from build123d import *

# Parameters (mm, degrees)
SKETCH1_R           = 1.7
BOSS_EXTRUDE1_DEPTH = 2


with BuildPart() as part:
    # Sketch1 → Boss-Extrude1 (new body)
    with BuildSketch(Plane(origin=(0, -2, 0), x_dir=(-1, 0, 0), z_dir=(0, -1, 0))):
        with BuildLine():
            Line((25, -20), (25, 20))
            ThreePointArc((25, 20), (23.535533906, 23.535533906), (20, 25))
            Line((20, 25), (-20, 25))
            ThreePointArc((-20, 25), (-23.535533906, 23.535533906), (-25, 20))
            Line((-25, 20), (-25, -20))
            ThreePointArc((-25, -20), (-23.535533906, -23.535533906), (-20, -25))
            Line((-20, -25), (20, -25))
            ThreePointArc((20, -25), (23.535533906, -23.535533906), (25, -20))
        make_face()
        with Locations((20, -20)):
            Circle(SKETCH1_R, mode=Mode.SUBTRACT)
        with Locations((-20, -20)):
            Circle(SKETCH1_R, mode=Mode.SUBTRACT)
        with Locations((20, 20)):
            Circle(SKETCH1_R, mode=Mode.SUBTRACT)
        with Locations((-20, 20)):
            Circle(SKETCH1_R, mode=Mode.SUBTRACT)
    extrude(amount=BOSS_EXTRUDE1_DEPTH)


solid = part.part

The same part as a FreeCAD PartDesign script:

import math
import FreeCAD as App
import Part
import Sketcher

V = App.Vector
Q = App.Units.Quantity

doc = App.newDocument("Part")
body = doc.addObject("PartDesign::Body", "Body")

# Sketch on XZ plane
sketch1 = doc.addObject("Sketcher::SketchObject", "Sketch")
body.addObject(sketch1)
sketch1.AttachmentSupport = (doc.XZ_Plane, [""])
sketch1.MapMode = "FlatFace"
sketch1.AttachmentOffset = App.Placement(V(0, 0, 2), App.Rotation())
sketch1.addGeometry(Part.LineSegment(V(-25, 20, 0), V(-25, -20, 0)), False)
sketch1.addGeometry(Part.ArcOfCircle(Part.Circle(V(-20, -20, 0), V(0, 0, 1), 5), math.radians(180), math.radians(270)), False)
sketch1.addGeometry(Part.LineSegment(V(-20, -25, 0), V(20, -25, 0)), False)
sketch1.addGeometry(Part.ArcOfCircle(Part.Circle(V(20, -20, 0), V(0, 0, 1), 5), math.radians(-90), math.radians(0)), False)
sketch1.addGeometry(Part.LineSegment(V(25, -20, 0), V(25, 20, 0)), False)
sketch1.addGeometry(Part.ArcOfCircle(Part.Circle(V(20, 20, 0), V(0, 0, 1), 5), math.radians(0), math.radians(90)), False)
sketch1.addGeometry(Part.LineSegment(V(20, 25, 0), V(-20, 25, 0)), False)
sketch1.addGeometry(Part.ArcOfCircle(Part.Circle(V(-20, 20, 0), V(0, 0, 1), 5), math.radians(90), math.radians(180)), False)
sketch1.addGeometry(Part.Circle(V(20, 20, 0), V(0, 0, 1), 1.7), False)
sketch1.addGeometry(Part.Circle(V(-20, 20, 0), V(0, 0, 1), 1.7), False)
sketch1.addGeometry(Part.Circle(V(20, -20, 0), V(0, 0, 1), 1.7), False)
sketch1.addGeometry(Part.Circle(V(-20, -20, 0), V(0, 0, 1), 1.7), False)
sketch1.addConstraint(Sketcher.Constraint("Tangent", 0, 2, 1, 1))
sketch1.addConstraint(Sketcher.Constraint("Tangent", 1, 2, 2, 1))
sketch1.addConstraint(Sketcher.Constraint("Tangent", 2, 2, 3, 1))
sketch1.addConstraint(Sketcher.Constraint("Tangent", 3, 2, 4, 1))
sketch1.addConstraint(Sketcher.Constraint("Tangent", 4, 2, 5, 1))
sketch1.addConstraint(Sketcher.Constraint("Tangent", 5, 2, 6, 1))
sketch1.addConstraint(Sketcher.Constraint("Tangent", 6, 2, 7, 1))
sketch1.addConstraint(Sketcher.Constraint("Tangent", 7, 2, 0, 1))
sketch1.addConstraint(Sketcher.Constraint("Vertical", 0))
sketch1.addConstraint(Sketcher.Constraint("Horizontal", 2))
sketch1.addConstraint(Sketcher.Constraint("Vertical", 4))
sketch1.addConstraint(Sketcher.Constraint("Horizontal", 6))
sketch1.addConstraint(Sketcher.Constraint("Coincident", 8, 3, 5, 3))
sketch1.addConstraint(Sketcher.Constraint("Coincident", 9, 3, 7, 3))
sketch1.addConstraint(Sketcher.Constraint("Coincident", 10, 3, 3, 3))
sketch1.addConstraint(Sketcher.Constraint("Coincident", 11, 3, 1, 3))
sketch1.addConstraint(Sketcher.Constraint("Equal", 1, 3))
sketch1.addConstraint(Sketcher.Constraint("Equal", 3, 5))
sketch1.addConstraint(Sketcher.Constraint("Equal", 5, 7))
sketch1.addConstraint(Sketcher.Constraint("Equal", 8, 9))
sketch1.addConstraint(Sketcher.Constraint("Equal", 9, 10))
sketch1.addConstraint(Sketcher.Constraint("Equal", 10, 11))
sketch1.addConstraint(Sketcher.Constraint("Symmetric", 1, 3, 5, 3, -1, 1))
sketch1.addConstraint(Sketcher.Constraint("Equal", 6, 0))
sketch1.addConstraint(Sketcher.Constraint("Radius", 1, Q("5 mm")))
sketch1.addConstraint(Sketcher.Constraint("Diameter", 8, Q("3.4 mm")))
sketch1.addConstraint(Sketcher.Constraint("DistanceX", 2, 1, 2, 2, Q("40 mm")))
pad1 = doc.addObject("PartDesign::Pad", "Pad")
body.addObject(pad1)
pad1.Profile = sketch1
pad1.Length = 2

doc.recompute()
